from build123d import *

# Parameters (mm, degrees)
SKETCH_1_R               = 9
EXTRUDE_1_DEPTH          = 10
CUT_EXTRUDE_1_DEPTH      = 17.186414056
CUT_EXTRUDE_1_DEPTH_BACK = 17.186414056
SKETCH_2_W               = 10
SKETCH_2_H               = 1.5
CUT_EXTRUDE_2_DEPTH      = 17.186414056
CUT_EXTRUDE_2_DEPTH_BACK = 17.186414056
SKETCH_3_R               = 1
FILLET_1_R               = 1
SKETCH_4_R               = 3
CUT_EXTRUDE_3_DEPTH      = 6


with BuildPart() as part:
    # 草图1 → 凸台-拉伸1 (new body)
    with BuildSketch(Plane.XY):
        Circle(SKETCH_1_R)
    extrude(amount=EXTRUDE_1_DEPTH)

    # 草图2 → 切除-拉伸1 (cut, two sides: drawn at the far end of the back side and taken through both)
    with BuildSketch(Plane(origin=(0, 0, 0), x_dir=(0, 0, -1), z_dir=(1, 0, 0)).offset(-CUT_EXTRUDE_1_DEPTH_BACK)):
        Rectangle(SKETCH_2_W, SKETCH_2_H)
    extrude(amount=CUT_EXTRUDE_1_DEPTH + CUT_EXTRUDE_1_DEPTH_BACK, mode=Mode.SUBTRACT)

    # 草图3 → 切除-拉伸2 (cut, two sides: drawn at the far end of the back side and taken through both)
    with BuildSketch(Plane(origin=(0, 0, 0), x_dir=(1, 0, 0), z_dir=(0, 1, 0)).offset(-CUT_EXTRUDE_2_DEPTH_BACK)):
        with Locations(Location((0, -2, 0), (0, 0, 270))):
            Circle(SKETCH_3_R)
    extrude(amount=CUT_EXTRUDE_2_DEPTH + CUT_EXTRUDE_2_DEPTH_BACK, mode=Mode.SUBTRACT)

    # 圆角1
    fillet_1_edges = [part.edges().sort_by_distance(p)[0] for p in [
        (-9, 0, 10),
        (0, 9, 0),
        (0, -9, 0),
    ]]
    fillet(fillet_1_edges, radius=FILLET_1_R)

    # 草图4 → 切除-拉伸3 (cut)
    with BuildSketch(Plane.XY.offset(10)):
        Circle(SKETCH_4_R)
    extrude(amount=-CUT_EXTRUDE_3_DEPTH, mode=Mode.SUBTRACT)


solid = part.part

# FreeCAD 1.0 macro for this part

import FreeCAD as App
import Part
import Sketcher

V = App.Vector
Q = App.Units.Quantity


def edges_at(feature, points):
    """Names of the edges that pass closest to the given points."""
    edges = feature.Shape.Edges
    near = lambda p: min(range(len(edges)), key=lambda i: edges[i].distToShape(Part.Vertex(*p))[0])
    return sorted({f"Edge{near(p) + 1}" for p in points})


def add_polygon(sketch, points):
    """Adds a closed chain of lines whose ends are joined by coincident constraints."""
    first, n = sketch.GeometryCount, len(points)
    for a, b in zip(points, points[1:] + points[:1]):
        sketch.addGeometry(Part.LineSegment(App.Vector(*a, 0), App.Vector(*b, 0)), False)
    for i in range(n):
        sketch.addConstraint(Sketcher.Constraint("Coincident", first + i, 2, first + (i + 1) % n, 1))

doc = App.newDocument("Part")
params = doc.addObject("Spreadsheet::Sheet", "Params")
for row, (alias, value) in enumerate([
    ("sketch1_diameter", "18 mm"),
    ("pad1_length", "10 mm"),
    ("sketch2_height", "10 mm"),
    ("sketch2_width", "1.5 mm"),
    ("sketch3_diameter", "2 mm"),
    ("fillet_radius", "1 mm"),
    ("sketch4_diameter", "6 mm"),
    ("pocket3_length", "6 mm"),
], start=1):
    params.set(f"A{row}", alias)
    params.set(f"B{row}", "=" + value)
    params.setAlias(f"B{row}", alias)

body = doc.addObject("PartDesign::Body", "Body")

# Sketch on XY plane
sketch1 = body.newObject("Sketcher::SketchObject", "Sketch")
sketch1.AttachmentSupport = (doc.getObject("XY_Plane"), [""])
sketch1.MapMode = "FlatFace"
sketch1.addGeometry(Part.Circle(V(0, 0, 0), V(0, 0, 1), 9), False)
sketch1.addConstraint([
    Sketcher.Constraint("Coincident", 0, 3, -1, 1),
    Sketcher.Constraint("Diameter", 0, Q("18 mm")),
])
sketch1.setExpression("Constraints[1]", "Params.sketch1_diameter")
pad1 = body.newObject("PartDesign::Pad", "Pad")
pad1.Profile = sketch1
pad1.setExpression("Length", "Params.pad1_length")

# Sketch on YZ plane
sketch2 = body.newObject("Sketcher::SketchObject", "Sketch001")
sketch2.AttachmentSupport = (doc.getObject("YZ_Plane"), [""])
sketch2.MapMode = "FlatFace"
add_polygon(sketch2, [(0.8, 5), (-0.8, 5), (-0.8, -5), (0.8, -5)])  # lines 0-3
sketch2.addConstraint([
    Sketcher.Constraint("Horizontal", 0),
    Sketcher.Constraint("Vertical", 1),
    Sketcher.Constraint("Horizontal", 2),
    Sketcher.Constraint("Vertical", 3),
    Sketcher.Constraint("Symmetric", 0, 2, 2, 2, -1, 1),
    Sketcher.Constraint("DistanceY", 1, 2, 1, 1, Q("10 mm")),
    Sketcher.Constraint("DistanceX", 0, 2, 0, 1, Q("1.5 mm")),
])
sketch2.setExpression("Constraints[9]", "Params.sketch2_height")
sketch2.setExpression("Constraints[10]", "Params.sketch2_width")
pocket1 = body.newObject("PartDesign::Pocket", "Pocket")
pocket1.Profile = sketch2
pocket1.Type = "ThroughAll"
pocket1.Midplane = True

# Sketch on XZ plane
sketch3 = body.newObject("Sketcher::SketchObject", "Sketch002")
sketch3.AttachmentSupport = (doc.getObject("XZ_Plane"), [""])
sketch3.MapMode = "FlatFace"
sketch3.addGeometry(Part.Circle(V(0, 2, 0), V(0, 0, 1), 1), False)
sketch3.addConstraint([
    Sketcher.Constraint("PointOnObject", 0, 3, -2),
    Sketcher.Constraint("Diameter", 0, Q("2 mm")),
    Sketcher.Constraint("DistanceY", -1, 1, 0, 3, Q("2 mm")),
])
sketch3.setExpression("Constraints[1]", "Params.sketch3_diameter")
pocket2 = body.newObject("PartDesign::Pocket", "Pocket001")
pocket2.Profile = sketch3
pocket2.Type = "ThroughAll"
pocket2.Midplane = True
doc.recompute()

fillet = body.newObject("PartDesign::Fillet", "Fillet")
fillet.Base = (pocket2, edges_at(pocket2, [(-9, 0, 10), (0, 9, 0), (0, -9, 0)]))
fillet.setExpression("Radius", "Params.fillet_radius")

# Sketch on XY plane
sketch4 = body.newObject("Sketcher::SketchObject", "Sketch003")
sketch4.AttachmentSupport = (doc.getObject("XY_Plane"), [""])
sketch4.MapMode = "FlatFace"
sketch4.AttachmentOffset = App.Placement(V(0, 0, 10), App.Rotation())
sketch4.addGeometry(Part.Circle(V(0, 0, 0), V(0, 0, 1), 3), False)
sketch4.addConstraint([
    Sketcher.Constraint("Coincident", 0, 3, -1, 1),
    Sketcher.Constraint("Diameter", 0, Q("6 mm")),
])
sketch4.setExpression("Constraints[1]", "Params.sketch4_diameter")
pocket3 = body.newObject("PartDesign::Pocket", "Pocket002")
pocket3.Profile = sketch4
pocket3.setExpression("Length", "Params.pocket3_length")

doc.recompute()
